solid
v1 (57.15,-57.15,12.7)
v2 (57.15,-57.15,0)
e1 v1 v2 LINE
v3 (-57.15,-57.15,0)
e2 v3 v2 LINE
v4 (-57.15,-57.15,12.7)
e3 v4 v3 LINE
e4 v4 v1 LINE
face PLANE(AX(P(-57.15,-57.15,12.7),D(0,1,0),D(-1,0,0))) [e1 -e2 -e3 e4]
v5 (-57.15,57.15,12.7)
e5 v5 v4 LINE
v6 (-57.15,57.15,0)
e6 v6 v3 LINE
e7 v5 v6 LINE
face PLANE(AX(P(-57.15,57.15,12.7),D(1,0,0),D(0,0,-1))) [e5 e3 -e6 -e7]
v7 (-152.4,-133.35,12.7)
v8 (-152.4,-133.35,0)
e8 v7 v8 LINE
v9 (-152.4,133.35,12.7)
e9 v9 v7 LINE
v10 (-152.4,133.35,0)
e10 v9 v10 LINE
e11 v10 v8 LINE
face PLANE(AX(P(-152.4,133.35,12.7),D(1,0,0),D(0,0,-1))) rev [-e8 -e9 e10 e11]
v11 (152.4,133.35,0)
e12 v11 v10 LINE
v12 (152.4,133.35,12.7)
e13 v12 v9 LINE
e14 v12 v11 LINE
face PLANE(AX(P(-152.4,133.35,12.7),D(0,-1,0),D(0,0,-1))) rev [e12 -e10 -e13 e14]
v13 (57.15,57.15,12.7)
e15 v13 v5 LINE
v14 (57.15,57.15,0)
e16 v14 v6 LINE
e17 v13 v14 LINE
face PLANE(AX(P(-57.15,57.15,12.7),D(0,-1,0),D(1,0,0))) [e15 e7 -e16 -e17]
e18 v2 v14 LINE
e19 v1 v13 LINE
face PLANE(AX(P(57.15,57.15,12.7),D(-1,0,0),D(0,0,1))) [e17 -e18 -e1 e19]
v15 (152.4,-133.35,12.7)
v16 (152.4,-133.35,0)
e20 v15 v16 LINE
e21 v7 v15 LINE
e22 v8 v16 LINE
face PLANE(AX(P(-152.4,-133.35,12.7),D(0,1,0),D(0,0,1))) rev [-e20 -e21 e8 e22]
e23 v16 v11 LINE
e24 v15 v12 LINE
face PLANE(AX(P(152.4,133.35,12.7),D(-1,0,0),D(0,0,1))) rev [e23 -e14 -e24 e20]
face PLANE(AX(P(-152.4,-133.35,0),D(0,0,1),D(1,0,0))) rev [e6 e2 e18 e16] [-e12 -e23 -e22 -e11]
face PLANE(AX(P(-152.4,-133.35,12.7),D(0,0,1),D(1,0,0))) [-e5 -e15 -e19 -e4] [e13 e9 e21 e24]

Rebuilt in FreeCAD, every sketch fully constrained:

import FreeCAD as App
import Part
import Sketcher
from FreeCAD import Vector
Q = App.Units.Quantity


def add_polygon(sketch, points):
    """Adds a closed chain of lines whose ends are joined by coincident constraints."""
    first, n = sketch.GeometryCount, len(points)
    for a, b in zip(points, points[1:] + points[:1]):
        sketch.addGeometry(Part.LineSegment(App.Vector(*a, 0), App.Vector(*b, 0)), False)
    for i in range(n):
        sketch.addConstraint(Sketcher.Constraint("Coincident", first + i, 2, first + (i + 1) % n, 1))

doc = App.newDocument("Part")
params = doc.addObject("Spreadsheet::Sheet", "Params")
for row, (alias, value) in enumerate([
    ("sketch1_width", "12 in"),
    ("sketch1_width2", "4.5 in"),
    ("sketch1_height", "10.5 in"),
    ("pad1_length", "0.5 in"),
], start=1):
    params.set(f"A{row}", alias)
    params.set(f"B{row}", "=" + value)
    params.setAlias(f"B{row}", alias)

body = doc.addObject("PartDesign::Body", "Body")

sketch1 = body.newObject("Sketcher::SketchObject", "Sketch")
sketch1.AttachmentSupport = (doc.getObject("XY_Plane"), [""])
sketch1.MapMode = "FlatFace"
add_polygon(sketch1, [(-152, 133), (-152, -133), (152, -133), (152, 133)])
add_polygon(sketch1, [(57, -57), (-57, -57), (-57, 57), (57, 57)])
sketch1.addConstraint([
    Sketcher.Constraint("Vertical", 0),
    Sketcher.Constraint("Horizontal", 1),
    Sketcher.Constraint("Vertical", 2),
    Sketcher.Constraint("Horizontal", 3),
    Sketcher.Constraint("Horizontal", 4),
    Sketcher.Constraint("Vertical", 5),
    Sketcher.Constraint("Horizontal", 6),
    Sketcher.Constraint("Vertical", 7),
    Sketcher.Constraint("Symmetric", 0, 2, 2, 2, -1, 1),
    Sketcher.Constraint("Symmetric", 4, 2, 6, 2, -1, 1),
    Sketcher.Constraint("Equal", 6, 5),
    Sketcher.Constraint("DistanceX", 1, 1, 1, 2, Q("12 in")),
    Sketcher.Constraint("DistanceX", 4, 2, 4, 1, Q("4.5 in")),
    Sketcher.Constraint("DistanceY", 0, 2, 0, 1, Q("10.5 in")),
])
sketch1.setExpression("Constraints[19]", "Params.sketch1_width")
sketch1.setExpression("Constraints[20]", "Params.sketch1_width2")
sketch1.setExpression("Constraints[21]", "Params.sketch1_height")
pad1 = body.newObject("PartDesign::Pad", "Pad")
pad1.Profile = sketch1
pad1.setExpression("Length", "Params.pad1_length")

doc.recompute()
